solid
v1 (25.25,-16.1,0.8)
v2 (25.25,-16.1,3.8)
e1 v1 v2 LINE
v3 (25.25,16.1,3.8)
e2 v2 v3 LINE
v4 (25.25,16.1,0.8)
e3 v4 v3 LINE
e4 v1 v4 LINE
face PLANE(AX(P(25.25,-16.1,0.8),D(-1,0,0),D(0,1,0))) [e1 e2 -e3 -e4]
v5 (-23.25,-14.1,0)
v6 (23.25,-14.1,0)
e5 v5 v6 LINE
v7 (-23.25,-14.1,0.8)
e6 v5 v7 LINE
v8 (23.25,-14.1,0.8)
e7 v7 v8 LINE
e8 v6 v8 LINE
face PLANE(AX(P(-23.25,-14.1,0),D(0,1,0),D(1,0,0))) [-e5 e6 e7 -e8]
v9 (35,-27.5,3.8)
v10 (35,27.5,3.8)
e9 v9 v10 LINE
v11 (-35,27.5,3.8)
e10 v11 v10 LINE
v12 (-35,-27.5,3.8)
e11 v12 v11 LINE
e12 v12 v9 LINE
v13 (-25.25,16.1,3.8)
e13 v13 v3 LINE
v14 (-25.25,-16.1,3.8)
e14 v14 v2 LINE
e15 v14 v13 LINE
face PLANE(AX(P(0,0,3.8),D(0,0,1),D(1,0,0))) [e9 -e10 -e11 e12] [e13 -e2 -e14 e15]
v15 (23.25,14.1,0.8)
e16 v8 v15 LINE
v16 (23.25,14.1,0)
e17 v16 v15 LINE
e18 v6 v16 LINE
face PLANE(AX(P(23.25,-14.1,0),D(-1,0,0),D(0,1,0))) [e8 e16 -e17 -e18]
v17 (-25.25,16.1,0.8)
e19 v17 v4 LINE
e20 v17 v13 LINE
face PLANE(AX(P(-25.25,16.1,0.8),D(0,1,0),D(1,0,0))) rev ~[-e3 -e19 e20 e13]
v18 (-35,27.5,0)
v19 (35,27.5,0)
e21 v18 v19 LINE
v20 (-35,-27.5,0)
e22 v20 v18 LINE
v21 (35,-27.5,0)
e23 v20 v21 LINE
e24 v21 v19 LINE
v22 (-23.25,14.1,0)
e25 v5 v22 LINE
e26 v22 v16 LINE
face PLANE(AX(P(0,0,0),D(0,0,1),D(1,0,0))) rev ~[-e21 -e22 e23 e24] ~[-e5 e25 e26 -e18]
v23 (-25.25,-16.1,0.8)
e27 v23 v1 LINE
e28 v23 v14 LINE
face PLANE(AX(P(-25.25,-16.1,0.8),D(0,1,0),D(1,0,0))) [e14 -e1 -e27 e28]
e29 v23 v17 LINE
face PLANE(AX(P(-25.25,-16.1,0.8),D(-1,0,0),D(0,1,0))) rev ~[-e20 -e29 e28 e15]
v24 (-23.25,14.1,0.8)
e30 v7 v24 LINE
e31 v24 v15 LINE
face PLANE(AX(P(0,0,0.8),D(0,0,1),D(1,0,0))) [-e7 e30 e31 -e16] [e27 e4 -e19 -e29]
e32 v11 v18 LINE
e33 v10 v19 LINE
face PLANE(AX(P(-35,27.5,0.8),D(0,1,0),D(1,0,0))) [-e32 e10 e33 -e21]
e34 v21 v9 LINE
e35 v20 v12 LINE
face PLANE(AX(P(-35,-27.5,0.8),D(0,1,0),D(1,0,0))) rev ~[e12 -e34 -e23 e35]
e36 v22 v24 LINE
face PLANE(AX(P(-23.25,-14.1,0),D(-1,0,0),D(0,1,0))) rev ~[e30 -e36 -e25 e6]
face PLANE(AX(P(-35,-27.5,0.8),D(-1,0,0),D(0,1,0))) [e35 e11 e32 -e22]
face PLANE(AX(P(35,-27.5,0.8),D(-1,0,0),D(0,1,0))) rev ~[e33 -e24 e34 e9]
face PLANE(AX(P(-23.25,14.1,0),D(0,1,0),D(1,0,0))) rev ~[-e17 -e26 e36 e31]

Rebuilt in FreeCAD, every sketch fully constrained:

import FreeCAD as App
import Part
import Sketcher
from FreeCAD import Vector

doc = App.newDocument("Part")
params = doc.addObject("Spreadsheet::Sheet", "Params")
for row, (alias, value) in enumerate([
    ("sketch1_width", "70 mm"),
    ("sketch1_height", "55 mm"),
    ("sketch1_width2", "46.5 mm"),
    ("sketch1_height2", "28.2 mm"),
    ("pad1_length", "0.8 mm"),
    ("sketch2_width", "70 mm"),
    ("sketch2_height", "55 mm"),
    ("sketch2_width2", "50.5 mm"),
    ("sketch2_height2", "32.2 mm"),
    ("pad2_length", "3 mm"),
], start=1):
    params.set(f"A{row}", alias)
    params.set(f"B{row}", "=" + value)
    params.setAlias(f"B{row}", alias)

body = doc.addObject("PartDesign::Body", "Body")

# Sketch on XY plane
sketch1 = body.newObject("Sketcher::SketchObject", "Sketch")
sketch1.AttachmentSupport = (doc.getObject("XY_Plane"), [""])
sketch1.MapMode = "FlatFace"
sketch1.addGeometry([
    Part.LineSegment(Vector(-35, 28, 0), Vector(-35, -28, 0)),  # 0
    Part.LineSegment(Vector(-35, -28, 0), Vector(35, -28, 0)),  # 1
    Part.LineSegment(Vector(35, -28, 0), Vector(35, 28, 0)),  # 2
    Part.LineSegment(Vector(35, 28, 0), Vector(-35, 28, 0)),  # 3
    Part.LineSegment(Vector(23, -14, 0), Vector(-23, -14, 0)),  # 4
    Part.LineSegment(Vector(-23, -14, 0), Vector(-23, 14, 0)),  # 5
    Part.LineSegment(Vector(-23, 14, 0), Vector(23, 14, 0)),  # 6
    Part.LineSegment(Vector(23, 14, 0), Vector(23, -14, 0)),  # 7
], False)
sketch1.addConstraint([
    Sketcher.Constraint("Coincident", 0, 2, 1, 1),
    Sketcher.Constraint("Coincident", 1, 2, 2, 1),
    Sketcher.Constraint("Coincident", 2, 2, 3, 1),
    Sketcher.Constraint("Coincident", 3, 2, 0, 1),
    Sketcher.Constraint("Coincident", 4, 2, 5, 1),
    Sketcher.Constraint("Coincident", 5, 2, 6, 1),
    Sketcher.Constraint("Coincident", 6, 2, 7, 1),
    Sketcher.Constraint("Coincident", 7, 2, 4, 1),
    Sketcher.Constraint("Vertical", 0),
    Sketcher.Constraint("Horizontal", 1),
    Sketcher.Constraint("Vertical", 2),
    Sketcher.Constraint("Horizontal", 3),
    Sketcher.Constraint("Horizontal", 4),
    Sketcher.Constraint("Vertical", 5),
    Sketcher.Constraint("Horizontal", 6),
    Sketcher.Constraint("Vertical", 7),
    Sketcher.Constraint("Symmetric", 0, 2, 2, 2, -1, 1),
    Sketcher.Constraint("Symmetric", 4, 2, 6, 2, -1, 1),
    Sketcher.Constraint("DistanceX", 1, 1, 1, 2, 70.0),
    Sketcher.Constraint("DistanceY", 0, 2, 0, 1, 55.0),
    Sketcher.Constraint("DistanceX", 4, 2, 4, 1, 46.5),
    Sketcher.Constraint("DistanceY", 5, 1, 5, 2, 28.2),
])
sketch1.setExpression("Constraints[18]", "Params.sketch1_width")
sketch1.setExpression("Constraints[19]", "Params.sketch1_height")
sketch1.setExpression("Constraints[20]", "Params.sketch1_width2")
sketch1.setExpression("Constraints[21]", "Params.sketch1_height2")
pad1 = body.newObject("PartDesign::Pad", "Pad")
pad1.Profile = sketch1
pad1.setExpression("Length", "Params.pad1_length")

# Sketch on XY plane
sketch2 = body.newObject("Sketcher::SketchObject", "Sketch001")
sketch2.AttachmentSupport = (doc.getObject("XY_Plane"), [""])
sketch2.MapMode = "FlatFace"
sketch2.AttachmentOffset = App.Placement(Vector(0, 0, 0.8), App.Rotation())
sketch2.addGeometry([
    Part.LineSegment(Vector(-35, 28, 0), Vector(-35, -28, 0)),  # 0
    Part.LineSegment(Vector(-35, -28, 0), Vector(35, -28, 0)),  # 1
    Part.LineSegment(Vector(35, -28, 0), Vector(35, 28, 0)),  # 2
    Part.LineSegment(Vector(35, 28, 0), Vector(-35, 28, 0)),  # 3
    Part.LineSegment(Vector(25, -16, 0), Vector(-25, -16, 0)),  # 4
    Part.LineSegment(Vector(-25, -16, 0), Vector(-25, 16, 0)),  # 5
    Part.LineSegment(Vector(-25, 16, 0), Vector(25, 16, 0)),  # 6
    Part.LineSegment(Vector(25, 16, 0), Vector(25, -16, 0)),  # 7
], False)
sketch2.addConstraint([
    Sketcher.Constraint("Coincident", 0, 2, 1, 1),
    Sketcher.Constraint("Coincident", 1, 2, 2, 1),
    Sketcher.Constraint("Coincident", 2, 2, 3, 1),
    Sketcher.Constraint("Coincident", 3, 2, 0, 1),
    Sketcher.Constraint("Coincident", 4, 2, 5, 1),
    Sketcher.Constraint("Coincident", 5, 2, 6, 1),
    Sketcher.Constraint("Coincident", 6, 2, 7, 1),
    Sketcher.Constraint("Coincident", 7, 2, 4, 1),
    Sketcher.Constraint("Vertical", 0),
    Sketcher.Constraint("Horizontal", 1),
    Sketcher.Constraint("Vertical", 2),
    Sketcher.Constraint("Horizontal", 3),
    Sketcher.Constraint("Horizontal", 4),
    Sketcher.Constraint("Vertical", 5),
    Sketcher.Constraint("Horizontal", 6),
    Sketcher.Constraint("Vertical", 7),
    Sketcher.Constraint("Symmetric", 0, 2, 2, 2, -1, 1),
    Sketcher.Constraint("Symmetric", 4, 2, 6, 2, -1, 1),
    Sketcher.Constraint("DistanceX", 1, 1, 1, 2, 70.0),
    Sketcher.Constraint("DistanceY", 0, 2, 0, 1, 55.0),
    Sketcher.Constraint("DistanceX", 4, 2, 4, 1, 50.5),
    Sketcher.Constraint("DistanceY", 5, 1, 5, 2, 32.2),
])
sketch2.setExpression("Constraints[18]", "Params.sketch2_width")
sketch2.setExpression("Constraints[19]", "Params.sketch2_height")
sketch2.setExpression("Constraints[20]", "Params.sketch2_width2")
sketch2.setExpression("Constraints[21]", "Params.sketch2_height2")
pad2 = body.newObject("PartDesign::Pad", "Pad001")
pad2.Profile = sketch2
pad2.setExpression("Length", "Params.pad2_length")

doc.recompute()
